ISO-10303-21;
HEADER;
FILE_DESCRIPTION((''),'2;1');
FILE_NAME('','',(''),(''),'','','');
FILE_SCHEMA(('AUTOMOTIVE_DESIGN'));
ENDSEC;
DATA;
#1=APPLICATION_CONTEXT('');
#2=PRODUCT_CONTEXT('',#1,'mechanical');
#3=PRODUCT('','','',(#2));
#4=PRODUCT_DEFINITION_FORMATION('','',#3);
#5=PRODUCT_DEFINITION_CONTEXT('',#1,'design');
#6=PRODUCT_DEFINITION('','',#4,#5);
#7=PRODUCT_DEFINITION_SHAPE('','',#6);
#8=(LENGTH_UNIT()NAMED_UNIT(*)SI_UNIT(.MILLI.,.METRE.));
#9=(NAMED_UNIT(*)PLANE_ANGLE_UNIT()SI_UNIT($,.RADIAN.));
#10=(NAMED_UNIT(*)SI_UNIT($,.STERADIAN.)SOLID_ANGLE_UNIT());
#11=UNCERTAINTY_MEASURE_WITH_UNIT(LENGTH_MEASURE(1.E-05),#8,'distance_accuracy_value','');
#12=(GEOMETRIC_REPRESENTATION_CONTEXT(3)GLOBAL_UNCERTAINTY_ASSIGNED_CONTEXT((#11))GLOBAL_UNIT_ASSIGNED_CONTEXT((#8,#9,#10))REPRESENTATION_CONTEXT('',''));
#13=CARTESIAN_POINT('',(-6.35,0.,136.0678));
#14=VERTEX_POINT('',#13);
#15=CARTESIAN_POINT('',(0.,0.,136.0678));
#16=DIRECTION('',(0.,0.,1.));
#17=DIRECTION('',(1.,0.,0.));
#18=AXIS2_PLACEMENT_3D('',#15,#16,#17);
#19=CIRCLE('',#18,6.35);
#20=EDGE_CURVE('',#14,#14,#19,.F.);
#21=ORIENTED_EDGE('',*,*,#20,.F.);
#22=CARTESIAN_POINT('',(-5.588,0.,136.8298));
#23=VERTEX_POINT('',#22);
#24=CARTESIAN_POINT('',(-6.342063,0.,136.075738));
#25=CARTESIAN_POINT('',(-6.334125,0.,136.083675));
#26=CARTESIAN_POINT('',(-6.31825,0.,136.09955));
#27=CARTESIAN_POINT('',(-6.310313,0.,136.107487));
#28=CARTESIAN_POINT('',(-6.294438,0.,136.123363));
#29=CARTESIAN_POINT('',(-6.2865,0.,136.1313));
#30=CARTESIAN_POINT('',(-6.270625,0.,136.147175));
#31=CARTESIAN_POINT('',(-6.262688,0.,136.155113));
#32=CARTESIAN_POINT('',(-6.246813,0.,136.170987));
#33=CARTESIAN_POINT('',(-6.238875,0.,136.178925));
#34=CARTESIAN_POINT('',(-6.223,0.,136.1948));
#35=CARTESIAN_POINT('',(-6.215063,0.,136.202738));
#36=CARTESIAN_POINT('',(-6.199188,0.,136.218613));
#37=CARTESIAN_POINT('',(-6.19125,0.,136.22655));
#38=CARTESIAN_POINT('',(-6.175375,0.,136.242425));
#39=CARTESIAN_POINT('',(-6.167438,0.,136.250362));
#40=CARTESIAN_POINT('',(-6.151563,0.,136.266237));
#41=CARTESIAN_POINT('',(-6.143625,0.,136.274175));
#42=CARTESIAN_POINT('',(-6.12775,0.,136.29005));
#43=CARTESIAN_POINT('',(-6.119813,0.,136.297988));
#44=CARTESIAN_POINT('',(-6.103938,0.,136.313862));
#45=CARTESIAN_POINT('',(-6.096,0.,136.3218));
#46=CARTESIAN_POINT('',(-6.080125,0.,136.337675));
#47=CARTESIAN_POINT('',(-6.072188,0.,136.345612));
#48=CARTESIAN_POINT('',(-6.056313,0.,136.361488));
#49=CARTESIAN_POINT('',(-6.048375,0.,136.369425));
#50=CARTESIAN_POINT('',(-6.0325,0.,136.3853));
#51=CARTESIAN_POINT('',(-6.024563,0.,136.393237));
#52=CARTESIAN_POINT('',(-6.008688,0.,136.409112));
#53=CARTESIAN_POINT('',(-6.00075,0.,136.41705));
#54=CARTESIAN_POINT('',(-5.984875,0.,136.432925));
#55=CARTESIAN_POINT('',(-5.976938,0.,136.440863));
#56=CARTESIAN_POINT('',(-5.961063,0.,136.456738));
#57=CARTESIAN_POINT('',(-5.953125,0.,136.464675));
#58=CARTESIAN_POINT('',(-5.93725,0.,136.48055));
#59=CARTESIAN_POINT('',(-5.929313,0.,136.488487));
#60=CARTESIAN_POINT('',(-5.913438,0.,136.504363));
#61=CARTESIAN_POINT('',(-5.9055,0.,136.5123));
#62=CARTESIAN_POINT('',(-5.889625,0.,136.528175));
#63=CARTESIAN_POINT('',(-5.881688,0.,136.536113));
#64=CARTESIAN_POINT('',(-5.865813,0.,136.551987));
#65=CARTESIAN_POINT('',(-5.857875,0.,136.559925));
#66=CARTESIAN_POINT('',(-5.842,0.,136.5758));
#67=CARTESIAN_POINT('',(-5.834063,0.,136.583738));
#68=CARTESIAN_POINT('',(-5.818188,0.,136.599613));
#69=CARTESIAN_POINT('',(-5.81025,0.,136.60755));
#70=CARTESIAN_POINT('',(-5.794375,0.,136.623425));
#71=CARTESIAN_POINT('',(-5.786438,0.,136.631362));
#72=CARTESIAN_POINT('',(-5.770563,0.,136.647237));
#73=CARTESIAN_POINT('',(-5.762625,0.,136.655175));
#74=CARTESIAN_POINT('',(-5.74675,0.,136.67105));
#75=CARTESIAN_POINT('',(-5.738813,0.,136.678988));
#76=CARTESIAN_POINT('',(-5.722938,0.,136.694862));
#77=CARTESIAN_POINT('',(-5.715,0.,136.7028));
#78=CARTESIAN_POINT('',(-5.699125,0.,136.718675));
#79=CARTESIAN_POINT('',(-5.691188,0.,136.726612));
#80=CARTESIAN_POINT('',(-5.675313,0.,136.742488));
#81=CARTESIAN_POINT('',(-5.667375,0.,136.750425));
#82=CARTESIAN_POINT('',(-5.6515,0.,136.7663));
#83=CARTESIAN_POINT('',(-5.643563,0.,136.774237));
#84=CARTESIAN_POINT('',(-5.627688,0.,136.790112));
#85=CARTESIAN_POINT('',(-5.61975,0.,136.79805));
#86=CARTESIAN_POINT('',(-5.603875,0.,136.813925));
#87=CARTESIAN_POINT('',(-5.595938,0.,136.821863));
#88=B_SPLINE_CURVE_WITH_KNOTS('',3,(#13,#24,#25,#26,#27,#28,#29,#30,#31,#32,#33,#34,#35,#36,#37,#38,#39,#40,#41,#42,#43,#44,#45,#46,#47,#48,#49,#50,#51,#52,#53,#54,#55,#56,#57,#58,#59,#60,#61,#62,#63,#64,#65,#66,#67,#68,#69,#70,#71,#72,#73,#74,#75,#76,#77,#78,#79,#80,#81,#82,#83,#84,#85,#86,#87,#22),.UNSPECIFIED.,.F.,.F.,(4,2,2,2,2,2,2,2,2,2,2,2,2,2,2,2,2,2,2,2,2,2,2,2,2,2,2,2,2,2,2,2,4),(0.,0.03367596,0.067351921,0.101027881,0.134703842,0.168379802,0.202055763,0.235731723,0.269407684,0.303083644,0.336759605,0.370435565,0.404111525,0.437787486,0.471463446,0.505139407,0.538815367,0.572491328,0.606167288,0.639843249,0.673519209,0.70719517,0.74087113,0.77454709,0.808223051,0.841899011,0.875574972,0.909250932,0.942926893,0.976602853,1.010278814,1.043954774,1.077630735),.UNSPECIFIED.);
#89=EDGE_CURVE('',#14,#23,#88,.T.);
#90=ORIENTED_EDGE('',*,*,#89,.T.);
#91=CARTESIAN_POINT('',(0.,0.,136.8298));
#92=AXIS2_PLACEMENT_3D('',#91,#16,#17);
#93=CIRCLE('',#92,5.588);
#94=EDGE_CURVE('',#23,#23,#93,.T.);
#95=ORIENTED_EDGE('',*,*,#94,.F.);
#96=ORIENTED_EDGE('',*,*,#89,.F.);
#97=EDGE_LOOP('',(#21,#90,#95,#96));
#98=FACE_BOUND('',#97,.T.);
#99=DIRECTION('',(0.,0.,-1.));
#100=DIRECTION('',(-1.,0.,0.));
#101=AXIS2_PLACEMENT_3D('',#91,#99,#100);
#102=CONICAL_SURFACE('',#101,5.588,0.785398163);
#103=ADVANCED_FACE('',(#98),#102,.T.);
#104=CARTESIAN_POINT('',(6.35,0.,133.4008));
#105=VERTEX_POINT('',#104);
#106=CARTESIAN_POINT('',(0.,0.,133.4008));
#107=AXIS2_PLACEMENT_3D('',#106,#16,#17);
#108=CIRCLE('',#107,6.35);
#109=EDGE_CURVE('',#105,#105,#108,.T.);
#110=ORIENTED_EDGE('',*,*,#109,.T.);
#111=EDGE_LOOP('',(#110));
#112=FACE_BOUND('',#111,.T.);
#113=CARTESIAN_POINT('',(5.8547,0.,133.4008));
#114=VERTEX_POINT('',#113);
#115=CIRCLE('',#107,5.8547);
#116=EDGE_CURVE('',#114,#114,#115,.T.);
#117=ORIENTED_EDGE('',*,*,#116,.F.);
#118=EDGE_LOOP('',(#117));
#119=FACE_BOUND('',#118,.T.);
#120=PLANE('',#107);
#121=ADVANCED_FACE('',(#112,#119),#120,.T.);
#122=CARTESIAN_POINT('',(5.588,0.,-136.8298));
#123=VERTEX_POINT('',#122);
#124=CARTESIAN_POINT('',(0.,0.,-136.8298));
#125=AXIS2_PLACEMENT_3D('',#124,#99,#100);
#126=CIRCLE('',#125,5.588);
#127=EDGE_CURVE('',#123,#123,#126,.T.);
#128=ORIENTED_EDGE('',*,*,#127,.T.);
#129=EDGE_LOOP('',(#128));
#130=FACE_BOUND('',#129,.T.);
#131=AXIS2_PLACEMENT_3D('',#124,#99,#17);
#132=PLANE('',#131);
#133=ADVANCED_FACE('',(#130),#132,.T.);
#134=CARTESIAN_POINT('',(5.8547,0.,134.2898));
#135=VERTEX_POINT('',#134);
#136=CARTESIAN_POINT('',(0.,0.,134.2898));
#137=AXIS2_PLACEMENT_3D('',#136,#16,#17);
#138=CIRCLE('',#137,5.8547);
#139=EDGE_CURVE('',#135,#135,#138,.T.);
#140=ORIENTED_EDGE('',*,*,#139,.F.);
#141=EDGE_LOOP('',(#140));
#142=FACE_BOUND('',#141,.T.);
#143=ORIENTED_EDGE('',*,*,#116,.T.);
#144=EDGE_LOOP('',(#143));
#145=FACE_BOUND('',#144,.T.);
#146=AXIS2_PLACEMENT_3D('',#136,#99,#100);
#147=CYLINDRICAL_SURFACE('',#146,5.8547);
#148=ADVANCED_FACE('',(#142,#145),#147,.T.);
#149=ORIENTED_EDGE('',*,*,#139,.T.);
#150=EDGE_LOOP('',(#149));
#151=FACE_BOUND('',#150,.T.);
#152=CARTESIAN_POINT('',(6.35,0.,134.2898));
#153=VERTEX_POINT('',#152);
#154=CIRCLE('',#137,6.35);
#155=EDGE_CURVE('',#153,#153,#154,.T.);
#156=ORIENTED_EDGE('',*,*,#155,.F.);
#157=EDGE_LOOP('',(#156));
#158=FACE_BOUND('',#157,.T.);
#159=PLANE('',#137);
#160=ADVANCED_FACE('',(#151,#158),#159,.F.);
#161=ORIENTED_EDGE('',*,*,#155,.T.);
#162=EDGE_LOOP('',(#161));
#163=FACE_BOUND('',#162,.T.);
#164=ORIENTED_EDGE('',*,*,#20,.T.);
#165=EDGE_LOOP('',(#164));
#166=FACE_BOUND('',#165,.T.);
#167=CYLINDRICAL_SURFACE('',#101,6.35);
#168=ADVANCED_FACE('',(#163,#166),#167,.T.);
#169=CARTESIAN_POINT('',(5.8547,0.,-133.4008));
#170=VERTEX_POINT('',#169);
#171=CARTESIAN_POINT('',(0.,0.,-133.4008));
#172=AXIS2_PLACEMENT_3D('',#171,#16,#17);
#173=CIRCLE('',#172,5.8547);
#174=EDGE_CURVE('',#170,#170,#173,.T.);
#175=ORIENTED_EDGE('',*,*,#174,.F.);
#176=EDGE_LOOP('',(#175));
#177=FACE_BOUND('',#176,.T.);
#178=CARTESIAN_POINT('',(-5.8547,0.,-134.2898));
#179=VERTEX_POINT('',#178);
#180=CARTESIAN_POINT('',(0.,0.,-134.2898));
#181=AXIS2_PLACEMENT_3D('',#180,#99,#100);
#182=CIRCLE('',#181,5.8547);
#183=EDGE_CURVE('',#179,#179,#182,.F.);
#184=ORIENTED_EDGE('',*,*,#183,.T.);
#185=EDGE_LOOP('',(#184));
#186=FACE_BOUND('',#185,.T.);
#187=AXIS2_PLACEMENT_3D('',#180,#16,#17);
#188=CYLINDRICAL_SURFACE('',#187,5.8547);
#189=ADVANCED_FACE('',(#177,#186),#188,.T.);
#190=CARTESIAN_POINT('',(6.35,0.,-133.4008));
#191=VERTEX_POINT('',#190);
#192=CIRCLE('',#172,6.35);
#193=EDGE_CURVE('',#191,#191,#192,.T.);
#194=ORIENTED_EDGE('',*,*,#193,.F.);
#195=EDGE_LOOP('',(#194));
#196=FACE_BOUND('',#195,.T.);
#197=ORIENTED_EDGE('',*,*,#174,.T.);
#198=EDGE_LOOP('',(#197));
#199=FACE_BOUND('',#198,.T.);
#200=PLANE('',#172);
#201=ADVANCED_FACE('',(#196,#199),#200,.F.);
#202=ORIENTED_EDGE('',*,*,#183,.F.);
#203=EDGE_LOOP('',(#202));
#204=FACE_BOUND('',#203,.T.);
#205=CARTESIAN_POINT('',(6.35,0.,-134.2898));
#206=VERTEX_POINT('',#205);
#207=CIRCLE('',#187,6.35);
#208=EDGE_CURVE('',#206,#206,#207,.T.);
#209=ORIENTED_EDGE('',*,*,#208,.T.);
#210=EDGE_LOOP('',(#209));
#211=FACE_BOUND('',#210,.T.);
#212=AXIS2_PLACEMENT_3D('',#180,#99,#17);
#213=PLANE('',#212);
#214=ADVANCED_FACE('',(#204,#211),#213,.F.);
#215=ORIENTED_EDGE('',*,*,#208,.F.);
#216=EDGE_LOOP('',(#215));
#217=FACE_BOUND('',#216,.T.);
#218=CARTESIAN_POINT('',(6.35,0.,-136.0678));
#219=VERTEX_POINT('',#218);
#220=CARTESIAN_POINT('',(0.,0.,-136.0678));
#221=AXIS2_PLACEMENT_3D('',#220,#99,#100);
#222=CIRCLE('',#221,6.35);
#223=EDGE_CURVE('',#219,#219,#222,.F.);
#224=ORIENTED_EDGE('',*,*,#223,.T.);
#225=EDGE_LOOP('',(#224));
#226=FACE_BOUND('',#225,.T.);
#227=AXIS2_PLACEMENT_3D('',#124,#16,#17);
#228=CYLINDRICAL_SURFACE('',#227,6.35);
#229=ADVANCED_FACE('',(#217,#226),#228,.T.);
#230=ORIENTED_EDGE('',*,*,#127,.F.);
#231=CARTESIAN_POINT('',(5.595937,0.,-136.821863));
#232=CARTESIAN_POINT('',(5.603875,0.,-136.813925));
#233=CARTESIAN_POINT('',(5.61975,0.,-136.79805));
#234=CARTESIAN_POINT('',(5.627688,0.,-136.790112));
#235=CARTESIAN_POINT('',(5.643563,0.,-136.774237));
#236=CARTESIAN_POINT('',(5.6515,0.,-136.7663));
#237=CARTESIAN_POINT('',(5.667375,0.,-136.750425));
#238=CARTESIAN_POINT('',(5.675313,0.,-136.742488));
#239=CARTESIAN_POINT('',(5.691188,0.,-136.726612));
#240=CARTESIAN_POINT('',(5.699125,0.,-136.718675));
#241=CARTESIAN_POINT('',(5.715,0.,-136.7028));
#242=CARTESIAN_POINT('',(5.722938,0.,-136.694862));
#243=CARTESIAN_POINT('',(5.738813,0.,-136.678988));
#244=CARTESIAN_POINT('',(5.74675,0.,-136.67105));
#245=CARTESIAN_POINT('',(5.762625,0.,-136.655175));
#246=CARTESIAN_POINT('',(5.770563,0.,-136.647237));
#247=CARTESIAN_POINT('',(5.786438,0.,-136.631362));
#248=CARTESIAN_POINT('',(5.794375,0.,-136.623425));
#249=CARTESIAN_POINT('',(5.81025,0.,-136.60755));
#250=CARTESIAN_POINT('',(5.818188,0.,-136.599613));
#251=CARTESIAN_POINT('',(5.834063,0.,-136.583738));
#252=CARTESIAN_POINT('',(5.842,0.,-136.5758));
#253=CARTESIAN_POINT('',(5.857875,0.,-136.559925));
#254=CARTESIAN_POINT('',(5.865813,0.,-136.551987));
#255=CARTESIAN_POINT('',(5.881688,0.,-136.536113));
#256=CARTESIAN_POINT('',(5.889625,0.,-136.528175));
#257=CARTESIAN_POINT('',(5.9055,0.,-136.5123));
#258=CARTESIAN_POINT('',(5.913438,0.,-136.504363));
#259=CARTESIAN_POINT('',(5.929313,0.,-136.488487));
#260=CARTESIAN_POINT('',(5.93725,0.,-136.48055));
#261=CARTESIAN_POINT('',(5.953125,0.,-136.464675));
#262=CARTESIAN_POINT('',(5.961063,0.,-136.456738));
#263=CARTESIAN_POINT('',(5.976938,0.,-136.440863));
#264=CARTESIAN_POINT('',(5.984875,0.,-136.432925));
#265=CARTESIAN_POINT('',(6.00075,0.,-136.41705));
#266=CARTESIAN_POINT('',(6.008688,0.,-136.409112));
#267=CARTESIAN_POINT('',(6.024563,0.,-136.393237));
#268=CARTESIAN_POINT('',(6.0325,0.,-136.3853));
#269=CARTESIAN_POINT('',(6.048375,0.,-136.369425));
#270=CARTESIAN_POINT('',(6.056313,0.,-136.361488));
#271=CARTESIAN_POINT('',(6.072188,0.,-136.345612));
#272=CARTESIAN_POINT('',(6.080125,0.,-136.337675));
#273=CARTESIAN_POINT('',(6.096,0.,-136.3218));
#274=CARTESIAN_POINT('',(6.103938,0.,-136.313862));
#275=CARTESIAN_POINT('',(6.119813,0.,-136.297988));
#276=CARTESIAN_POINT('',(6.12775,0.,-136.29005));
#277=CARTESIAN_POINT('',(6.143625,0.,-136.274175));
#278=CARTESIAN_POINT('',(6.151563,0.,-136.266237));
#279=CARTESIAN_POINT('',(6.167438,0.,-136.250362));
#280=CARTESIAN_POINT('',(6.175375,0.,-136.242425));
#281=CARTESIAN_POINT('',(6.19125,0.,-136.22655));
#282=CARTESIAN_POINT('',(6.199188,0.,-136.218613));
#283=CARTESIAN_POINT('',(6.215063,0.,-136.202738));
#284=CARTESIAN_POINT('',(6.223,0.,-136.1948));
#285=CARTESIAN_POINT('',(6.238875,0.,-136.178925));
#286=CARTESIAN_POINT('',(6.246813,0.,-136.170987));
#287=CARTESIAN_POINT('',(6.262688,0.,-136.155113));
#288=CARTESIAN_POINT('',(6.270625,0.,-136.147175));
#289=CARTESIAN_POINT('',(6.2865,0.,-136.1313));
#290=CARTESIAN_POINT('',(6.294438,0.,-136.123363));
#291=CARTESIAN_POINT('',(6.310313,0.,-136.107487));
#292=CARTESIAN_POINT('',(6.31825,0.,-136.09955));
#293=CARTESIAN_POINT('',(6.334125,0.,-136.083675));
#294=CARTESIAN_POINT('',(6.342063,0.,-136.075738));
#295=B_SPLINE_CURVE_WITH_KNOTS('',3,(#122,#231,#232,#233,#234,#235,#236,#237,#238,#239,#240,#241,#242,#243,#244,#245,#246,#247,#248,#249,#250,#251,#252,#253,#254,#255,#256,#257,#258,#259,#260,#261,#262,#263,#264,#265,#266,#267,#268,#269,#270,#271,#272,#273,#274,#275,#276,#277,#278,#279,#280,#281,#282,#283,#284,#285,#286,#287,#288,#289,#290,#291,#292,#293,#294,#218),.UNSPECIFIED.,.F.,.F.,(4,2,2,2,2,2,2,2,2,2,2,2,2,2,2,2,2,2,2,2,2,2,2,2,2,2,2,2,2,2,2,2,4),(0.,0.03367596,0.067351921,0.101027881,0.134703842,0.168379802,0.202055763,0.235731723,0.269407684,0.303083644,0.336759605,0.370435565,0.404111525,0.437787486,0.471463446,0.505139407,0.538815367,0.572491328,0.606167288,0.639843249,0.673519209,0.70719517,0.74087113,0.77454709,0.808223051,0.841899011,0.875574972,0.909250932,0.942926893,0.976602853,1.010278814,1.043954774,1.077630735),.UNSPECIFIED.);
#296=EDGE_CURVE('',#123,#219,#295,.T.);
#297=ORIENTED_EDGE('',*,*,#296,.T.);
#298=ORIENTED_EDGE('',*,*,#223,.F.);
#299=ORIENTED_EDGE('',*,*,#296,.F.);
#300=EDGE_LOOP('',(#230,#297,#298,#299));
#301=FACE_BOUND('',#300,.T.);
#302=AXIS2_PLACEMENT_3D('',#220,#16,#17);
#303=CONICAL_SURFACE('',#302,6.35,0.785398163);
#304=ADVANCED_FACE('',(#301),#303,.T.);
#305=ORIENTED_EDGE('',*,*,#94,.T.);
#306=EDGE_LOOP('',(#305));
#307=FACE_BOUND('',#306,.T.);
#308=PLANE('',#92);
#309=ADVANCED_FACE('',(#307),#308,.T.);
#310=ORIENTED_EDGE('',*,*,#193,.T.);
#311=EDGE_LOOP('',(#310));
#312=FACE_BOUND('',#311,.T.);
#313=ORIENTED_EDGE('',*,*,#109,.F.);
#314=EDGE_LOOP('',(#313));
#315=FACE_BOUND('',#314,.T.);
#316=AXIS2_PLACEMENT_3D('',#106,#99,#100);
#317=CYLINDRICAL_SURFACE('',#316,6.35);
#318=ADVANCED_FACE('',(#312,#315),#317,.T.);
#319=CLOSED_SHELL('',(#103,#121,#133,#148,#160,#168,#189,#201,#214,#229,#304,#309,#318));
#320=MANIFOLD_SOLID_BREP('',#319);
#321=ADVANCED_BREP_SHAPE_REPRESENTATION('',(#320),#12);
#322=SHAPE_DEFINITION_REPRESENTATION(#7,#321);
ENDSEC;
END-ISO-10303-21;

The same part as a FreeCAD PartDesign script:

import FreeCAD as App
import Part
import Sketcher

V = App.Vector
Q = App.Units.Quantity


def edges_at(feature, points):
    """Names of the edges that pass closest to the given points."""
    edges = feature.Shape.Edges
    near = lambda p: min(range(len(edges)), key=lambda i: edges[i].distToShape(Part.Vertex(*p))[0])
    return sorted({f"Edge{near(p) + 1}" for p in points})

doc = App.newDocument("Part")
body = doc.addObject("PartDesign::Body", "Body")

# Sketch on XY plane
sketch1 = body.newObject("Sketcher::SketchObject", "Sketch")
sketch1.AttachmentSupport = (doc.getObject("XY_Plane"), [""])
sketch1.MapMode = "FlatFace"
sketch1.addGeometry(Part.Circle(V(0, 0, 0), V(0, 0, 1), 6), False)
sketch1.addConstraint(Sketcher.Constraint("Coincident", 0, 3, -1, 1))
sketch1.addConstraint(Sketcher.Constraint("Diameter", 0, Q("0.5 in")))
pad1 = body.newObject("PartDesign::Pad", "Pad")
pad1.Profile = sketch1
pad1.Length = Q("10.504 in")
pad1.Midplane = True

# Sketch on XY plane
sketch2 = body.newObject("Sketcher::SketchObject", "Sketch001")
sketch2.AttachmentSupport = (doc.getObject("XY_Plane"), [""])
sketch2.MapMode = "FlatFace"
sketch2.AttachmentOffset = App.Placement(V(0, 0, 5.252 * 25.4), App.Rotation())
sketch2.addGeometry(Part.Circle(V(0, 0, 0), V(0, 0, 1), 6), False)
sketch2.addConstraint(Sketcher.Constraint("Coincident", 0, 3, -1, 1))
sketch2.addConstraint(Sketcher.Constraint("Diameter", 0, Q("0.461 in")))
pad2 = body.newObject("PartDesign::Pad", "Pad001")
pad2.Profile = sketch2
pad2.Length = Q("0.035 in")

# Sketch on XY plane
sketch3 = body.newObject("Sketcher::SketchObject", "Sketch002")
sketch3.AttachmentSupport = (doc.getObject("XY_Plane"), [""])
sketch3.MapMode = "FlatFace"
sketch3.AttachmentOffset = App.Placement(V(0, 0, 5.387 * 25.4), App.Rotation())
sketch3.addGeometry(Part.Circle(V(0, 0, 0), V(0, 0, 1), 6), False)
sketch3.addConstraint(Sketcher.Constraint("Coincident", 0, 3, -1, 1))
sketch3.addConstraint(Sketcher.Constraint("Diameter", 0, Q("0.5 in")))
pad3 = body.newObject("PartDesign::Pad", "Pad002")
pad3.Profile = sketch3
pad3.Length = Q("0.1 in")
pad3.Reversed = True
doc.recompute()

chamfer = body.newObject("PartDesign::Chamfer", "Chamfer")
chamfer.Base = (pad3, edges_at(pad3, [(-6.35, 0, 136.83)]))
chamfer.Size = Q("0.03 in")
doc.recompute()

mirrored = body.newObject("PartDesign::Mirrored", "Mirrored")
mirrored.Originals = [pad2, pad3]
mirrored.MirrorPlane = (doc.getObject("XY_Plane"), [""])
body.Tip = mirrored
doc.recompute()

chamfer2 = body.newObject("PartDesign::Chamfer", "Chamfer001")
chamfer2.Base = (mirrored, edges_at(mirrored, [(-6.35, 0, -136.83)]))
chamfer2.Size = Q("0.03 in")

doc.recompute()
